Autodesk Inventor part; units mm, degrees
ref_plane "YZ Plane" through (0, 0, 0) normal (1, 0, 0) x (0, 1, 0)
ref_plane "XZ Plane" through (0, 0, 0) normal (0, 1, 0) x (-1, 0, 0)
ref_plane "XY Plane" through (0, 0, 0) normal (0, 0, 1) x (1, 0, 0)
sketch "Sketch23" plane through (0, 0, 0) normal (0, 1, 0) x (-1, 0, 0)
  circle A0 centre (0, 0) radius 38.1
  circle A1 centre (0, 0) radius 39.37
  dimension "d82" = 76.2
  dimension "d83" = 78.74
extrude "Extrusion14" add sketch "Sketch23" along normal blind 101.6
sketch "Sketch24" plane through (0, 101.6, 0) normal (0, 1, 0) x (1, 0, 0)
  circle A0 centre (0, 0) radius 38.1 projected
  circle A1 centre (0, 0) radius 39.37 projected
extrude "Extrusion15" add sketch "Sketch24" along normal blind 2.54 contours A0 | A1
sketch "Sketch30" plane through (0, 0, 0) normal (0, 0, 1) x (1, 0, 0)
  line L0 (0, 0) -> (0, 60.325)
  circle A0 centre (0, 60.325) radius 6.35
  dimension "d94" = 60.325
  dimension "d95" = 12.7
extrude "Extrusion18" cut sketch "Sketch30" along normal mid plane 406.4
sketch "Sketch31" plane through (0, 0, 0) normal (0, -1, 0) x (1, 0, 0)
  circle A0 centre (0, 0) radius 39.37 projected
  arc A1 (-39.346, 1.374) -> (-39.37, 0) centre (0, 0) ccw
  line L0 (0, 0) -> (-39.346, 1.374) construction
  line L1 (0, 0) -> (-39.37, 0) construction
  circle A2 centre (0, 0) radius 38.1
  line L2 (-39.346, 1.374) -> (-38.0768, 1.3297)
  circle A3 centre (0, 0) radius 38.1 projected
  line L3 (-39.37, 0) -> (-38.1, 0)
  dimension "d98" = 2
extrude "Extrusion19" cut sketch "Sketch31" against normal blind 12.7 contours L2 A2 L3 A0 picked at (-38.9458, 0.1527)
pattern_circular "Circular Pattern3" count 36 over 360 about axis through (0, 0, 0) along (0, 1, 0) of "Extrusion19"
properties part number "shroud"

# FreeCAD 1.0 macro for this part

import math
import FreeCAD as App
import Part
import Sketcher

V = App.Vector
Q = App.Units.Quantity

doc = App.newDocument("Part")
body = doc.addObject("PartDesign::Body", "Body")

sketch1 = body.newObject("Sketcher::SketchObject", "Sketch")
sketch1.AttachmentSupport = (doc.getObject("XZ_Plane"), [""])
sketch1.MapMode = "FlatFace"
sketch1.addGeometry([
    Part.Circle(V(0, 0, 0), V(0, 0, 1), 39),
    Part.Circle(V(0, 0, 0), V(0, 0, 1), 38),
], False)
sketch1.addConstraint([
    Sketcher.Constraint("Coincident", 0, 3, -1, 1),
    Sketcher.Constraint("Coincident", 1, 3, -1, 1),
    Sketcher.Constraint("Diameter", 1, Q("3 in")),
    Sketcher.Constraint("Diameter", 0, Q("3.1 in")),
])
pad1 = body.newObject("PartDesign::Pad", "Pad")
pad1.Profile = sketch1
pad1.Length = Q("4 in")
pad1.Reversed = True

sketch2 = body.newObject("Sketcher::SketchObject", "Sketch001")
sketch2.AttachmentSupport = (doc.getObject("XZ_Plane"), [""])
sketch2.MapMode = "FlatFace"
sketch2.AttachmentOffset = App.Placement(V(0, 0, -4 * 25.4), App.Rotation())
sketch2.addGeometry(Part.Circle(V(0, 0, 0), V(0, 0, 1), 39), False)
sketch2.addConstraint([
    Sketcher.Constraint("Coincident", 0, 3, -1, 1),
    Sketcher.Constraint("Diameter", 0, Q("3.1 in")),
])
pad2 = body.newObject("PartDesign::Pad", "Pad001")
pad2.Profile = sketch2
pad2.Length = Q("0.1 in")
pad2.Reversed = True

sketch3 = body.newObject("Sketcher::SketchObject", "Sketch002")
sketch3.AttachmentSupport = (doc.getObject("XY_Plane"), [""])
sketch3.MapMode = "FlatFace"
sketch3.addGeometry(Part.Circle(V(0, 60, 0), V(0, 0, 1), 6), False)
sketch3.addConstraint([
    Sketcher.Constraint("PointOnObject", 0, 3, -2),
    Sketcher.Constraint("Diameter", 0, Q("0.5 in")),
    Sketcher.Constraint("DistanceY", -1, 1, 0, 3, Q("2.375 in")),
])
pocket1 = body.newObject("PartDesign::Pocket", "Pocket")
pocket1.Profile = sketch3
pocket1.Length = Q("16 in")
pocket1.Midplane = True

sketch4 = body.newObject("Sketcher::SketchObject", "Sketch003")
sketch4.AttachmentSupport = (doc.getObject("XZ_Plane"), [""])
sketch4.MapMode = "FlatFace"
sketch4.addGeometry([
    Part.LineSegment(V(-38.1, 1.3, 0), V(-39.3, 1.4, 0)),
    Part.ArcOfCircle(Part.Circle(V(0, 0, 0), V(0, 0, 1), 39.4), math.radians(178), math.radians(180)),
    Part.LineSegment(V(-39.4, 0, 0), V(-38.1, 0, 0)),
    Part.ArcOfCircle(Part.Circle(V(0, 0, 0), V(0, 0, 1), 38.1), math.radians(178), math.radians(180)),
], False)
sketch4.addConstraint([
    Sketcher.Constraint("Coincident", 0, 2, 1, 1),
    Sketcher.Constraint("Coincident", 1, 2, 2, 1),
    Sketcher.Constraint("Coincident", 2, 2, 3, 2),
    Sketcher.Constraint("Coincident", 3, 1, 0, 1),
    Sketcher.Constraint("Horizontal", 2),
    Sketcher.Constraint("Coincident", 1, 3, -1, 1),
    Sketcher.Constraint("Coincident", 3, 3, -1, 1),
    Sketcher.Constraint("PointOnObject", 1, 2, -1),
    Sketcher.Constraint("Radius", 3, Q("1.5 in")),
    Sketcher.Constraint("Radius", 1, Q("1.55 in")),
    Sketcher.Constraint("Angle", 0, Q("178.001 deg")),
    Sketcher.Constraint("DistanceY", -1, 1, 0, 2, Q("0.0541 in")),
])
pocket2 = body.newObject("PartDesign::Pocket", "Pocket001")
pocket2.Profile = sketch4
pocket2.Length = Q("0.5 in")
doc.recompute()

polarpattern = body.newObject("PartDesign::PolarPattern", "PolarPattern")
polarpattern.Originals = [pocket2]
polarpattern.Axis = (doc.getObject("Y_Axis"), [""])
polarpattern.Angle = 360
polarpattern.Occurrences = 36
body.Tip = polarpattern

doc.recompute()
